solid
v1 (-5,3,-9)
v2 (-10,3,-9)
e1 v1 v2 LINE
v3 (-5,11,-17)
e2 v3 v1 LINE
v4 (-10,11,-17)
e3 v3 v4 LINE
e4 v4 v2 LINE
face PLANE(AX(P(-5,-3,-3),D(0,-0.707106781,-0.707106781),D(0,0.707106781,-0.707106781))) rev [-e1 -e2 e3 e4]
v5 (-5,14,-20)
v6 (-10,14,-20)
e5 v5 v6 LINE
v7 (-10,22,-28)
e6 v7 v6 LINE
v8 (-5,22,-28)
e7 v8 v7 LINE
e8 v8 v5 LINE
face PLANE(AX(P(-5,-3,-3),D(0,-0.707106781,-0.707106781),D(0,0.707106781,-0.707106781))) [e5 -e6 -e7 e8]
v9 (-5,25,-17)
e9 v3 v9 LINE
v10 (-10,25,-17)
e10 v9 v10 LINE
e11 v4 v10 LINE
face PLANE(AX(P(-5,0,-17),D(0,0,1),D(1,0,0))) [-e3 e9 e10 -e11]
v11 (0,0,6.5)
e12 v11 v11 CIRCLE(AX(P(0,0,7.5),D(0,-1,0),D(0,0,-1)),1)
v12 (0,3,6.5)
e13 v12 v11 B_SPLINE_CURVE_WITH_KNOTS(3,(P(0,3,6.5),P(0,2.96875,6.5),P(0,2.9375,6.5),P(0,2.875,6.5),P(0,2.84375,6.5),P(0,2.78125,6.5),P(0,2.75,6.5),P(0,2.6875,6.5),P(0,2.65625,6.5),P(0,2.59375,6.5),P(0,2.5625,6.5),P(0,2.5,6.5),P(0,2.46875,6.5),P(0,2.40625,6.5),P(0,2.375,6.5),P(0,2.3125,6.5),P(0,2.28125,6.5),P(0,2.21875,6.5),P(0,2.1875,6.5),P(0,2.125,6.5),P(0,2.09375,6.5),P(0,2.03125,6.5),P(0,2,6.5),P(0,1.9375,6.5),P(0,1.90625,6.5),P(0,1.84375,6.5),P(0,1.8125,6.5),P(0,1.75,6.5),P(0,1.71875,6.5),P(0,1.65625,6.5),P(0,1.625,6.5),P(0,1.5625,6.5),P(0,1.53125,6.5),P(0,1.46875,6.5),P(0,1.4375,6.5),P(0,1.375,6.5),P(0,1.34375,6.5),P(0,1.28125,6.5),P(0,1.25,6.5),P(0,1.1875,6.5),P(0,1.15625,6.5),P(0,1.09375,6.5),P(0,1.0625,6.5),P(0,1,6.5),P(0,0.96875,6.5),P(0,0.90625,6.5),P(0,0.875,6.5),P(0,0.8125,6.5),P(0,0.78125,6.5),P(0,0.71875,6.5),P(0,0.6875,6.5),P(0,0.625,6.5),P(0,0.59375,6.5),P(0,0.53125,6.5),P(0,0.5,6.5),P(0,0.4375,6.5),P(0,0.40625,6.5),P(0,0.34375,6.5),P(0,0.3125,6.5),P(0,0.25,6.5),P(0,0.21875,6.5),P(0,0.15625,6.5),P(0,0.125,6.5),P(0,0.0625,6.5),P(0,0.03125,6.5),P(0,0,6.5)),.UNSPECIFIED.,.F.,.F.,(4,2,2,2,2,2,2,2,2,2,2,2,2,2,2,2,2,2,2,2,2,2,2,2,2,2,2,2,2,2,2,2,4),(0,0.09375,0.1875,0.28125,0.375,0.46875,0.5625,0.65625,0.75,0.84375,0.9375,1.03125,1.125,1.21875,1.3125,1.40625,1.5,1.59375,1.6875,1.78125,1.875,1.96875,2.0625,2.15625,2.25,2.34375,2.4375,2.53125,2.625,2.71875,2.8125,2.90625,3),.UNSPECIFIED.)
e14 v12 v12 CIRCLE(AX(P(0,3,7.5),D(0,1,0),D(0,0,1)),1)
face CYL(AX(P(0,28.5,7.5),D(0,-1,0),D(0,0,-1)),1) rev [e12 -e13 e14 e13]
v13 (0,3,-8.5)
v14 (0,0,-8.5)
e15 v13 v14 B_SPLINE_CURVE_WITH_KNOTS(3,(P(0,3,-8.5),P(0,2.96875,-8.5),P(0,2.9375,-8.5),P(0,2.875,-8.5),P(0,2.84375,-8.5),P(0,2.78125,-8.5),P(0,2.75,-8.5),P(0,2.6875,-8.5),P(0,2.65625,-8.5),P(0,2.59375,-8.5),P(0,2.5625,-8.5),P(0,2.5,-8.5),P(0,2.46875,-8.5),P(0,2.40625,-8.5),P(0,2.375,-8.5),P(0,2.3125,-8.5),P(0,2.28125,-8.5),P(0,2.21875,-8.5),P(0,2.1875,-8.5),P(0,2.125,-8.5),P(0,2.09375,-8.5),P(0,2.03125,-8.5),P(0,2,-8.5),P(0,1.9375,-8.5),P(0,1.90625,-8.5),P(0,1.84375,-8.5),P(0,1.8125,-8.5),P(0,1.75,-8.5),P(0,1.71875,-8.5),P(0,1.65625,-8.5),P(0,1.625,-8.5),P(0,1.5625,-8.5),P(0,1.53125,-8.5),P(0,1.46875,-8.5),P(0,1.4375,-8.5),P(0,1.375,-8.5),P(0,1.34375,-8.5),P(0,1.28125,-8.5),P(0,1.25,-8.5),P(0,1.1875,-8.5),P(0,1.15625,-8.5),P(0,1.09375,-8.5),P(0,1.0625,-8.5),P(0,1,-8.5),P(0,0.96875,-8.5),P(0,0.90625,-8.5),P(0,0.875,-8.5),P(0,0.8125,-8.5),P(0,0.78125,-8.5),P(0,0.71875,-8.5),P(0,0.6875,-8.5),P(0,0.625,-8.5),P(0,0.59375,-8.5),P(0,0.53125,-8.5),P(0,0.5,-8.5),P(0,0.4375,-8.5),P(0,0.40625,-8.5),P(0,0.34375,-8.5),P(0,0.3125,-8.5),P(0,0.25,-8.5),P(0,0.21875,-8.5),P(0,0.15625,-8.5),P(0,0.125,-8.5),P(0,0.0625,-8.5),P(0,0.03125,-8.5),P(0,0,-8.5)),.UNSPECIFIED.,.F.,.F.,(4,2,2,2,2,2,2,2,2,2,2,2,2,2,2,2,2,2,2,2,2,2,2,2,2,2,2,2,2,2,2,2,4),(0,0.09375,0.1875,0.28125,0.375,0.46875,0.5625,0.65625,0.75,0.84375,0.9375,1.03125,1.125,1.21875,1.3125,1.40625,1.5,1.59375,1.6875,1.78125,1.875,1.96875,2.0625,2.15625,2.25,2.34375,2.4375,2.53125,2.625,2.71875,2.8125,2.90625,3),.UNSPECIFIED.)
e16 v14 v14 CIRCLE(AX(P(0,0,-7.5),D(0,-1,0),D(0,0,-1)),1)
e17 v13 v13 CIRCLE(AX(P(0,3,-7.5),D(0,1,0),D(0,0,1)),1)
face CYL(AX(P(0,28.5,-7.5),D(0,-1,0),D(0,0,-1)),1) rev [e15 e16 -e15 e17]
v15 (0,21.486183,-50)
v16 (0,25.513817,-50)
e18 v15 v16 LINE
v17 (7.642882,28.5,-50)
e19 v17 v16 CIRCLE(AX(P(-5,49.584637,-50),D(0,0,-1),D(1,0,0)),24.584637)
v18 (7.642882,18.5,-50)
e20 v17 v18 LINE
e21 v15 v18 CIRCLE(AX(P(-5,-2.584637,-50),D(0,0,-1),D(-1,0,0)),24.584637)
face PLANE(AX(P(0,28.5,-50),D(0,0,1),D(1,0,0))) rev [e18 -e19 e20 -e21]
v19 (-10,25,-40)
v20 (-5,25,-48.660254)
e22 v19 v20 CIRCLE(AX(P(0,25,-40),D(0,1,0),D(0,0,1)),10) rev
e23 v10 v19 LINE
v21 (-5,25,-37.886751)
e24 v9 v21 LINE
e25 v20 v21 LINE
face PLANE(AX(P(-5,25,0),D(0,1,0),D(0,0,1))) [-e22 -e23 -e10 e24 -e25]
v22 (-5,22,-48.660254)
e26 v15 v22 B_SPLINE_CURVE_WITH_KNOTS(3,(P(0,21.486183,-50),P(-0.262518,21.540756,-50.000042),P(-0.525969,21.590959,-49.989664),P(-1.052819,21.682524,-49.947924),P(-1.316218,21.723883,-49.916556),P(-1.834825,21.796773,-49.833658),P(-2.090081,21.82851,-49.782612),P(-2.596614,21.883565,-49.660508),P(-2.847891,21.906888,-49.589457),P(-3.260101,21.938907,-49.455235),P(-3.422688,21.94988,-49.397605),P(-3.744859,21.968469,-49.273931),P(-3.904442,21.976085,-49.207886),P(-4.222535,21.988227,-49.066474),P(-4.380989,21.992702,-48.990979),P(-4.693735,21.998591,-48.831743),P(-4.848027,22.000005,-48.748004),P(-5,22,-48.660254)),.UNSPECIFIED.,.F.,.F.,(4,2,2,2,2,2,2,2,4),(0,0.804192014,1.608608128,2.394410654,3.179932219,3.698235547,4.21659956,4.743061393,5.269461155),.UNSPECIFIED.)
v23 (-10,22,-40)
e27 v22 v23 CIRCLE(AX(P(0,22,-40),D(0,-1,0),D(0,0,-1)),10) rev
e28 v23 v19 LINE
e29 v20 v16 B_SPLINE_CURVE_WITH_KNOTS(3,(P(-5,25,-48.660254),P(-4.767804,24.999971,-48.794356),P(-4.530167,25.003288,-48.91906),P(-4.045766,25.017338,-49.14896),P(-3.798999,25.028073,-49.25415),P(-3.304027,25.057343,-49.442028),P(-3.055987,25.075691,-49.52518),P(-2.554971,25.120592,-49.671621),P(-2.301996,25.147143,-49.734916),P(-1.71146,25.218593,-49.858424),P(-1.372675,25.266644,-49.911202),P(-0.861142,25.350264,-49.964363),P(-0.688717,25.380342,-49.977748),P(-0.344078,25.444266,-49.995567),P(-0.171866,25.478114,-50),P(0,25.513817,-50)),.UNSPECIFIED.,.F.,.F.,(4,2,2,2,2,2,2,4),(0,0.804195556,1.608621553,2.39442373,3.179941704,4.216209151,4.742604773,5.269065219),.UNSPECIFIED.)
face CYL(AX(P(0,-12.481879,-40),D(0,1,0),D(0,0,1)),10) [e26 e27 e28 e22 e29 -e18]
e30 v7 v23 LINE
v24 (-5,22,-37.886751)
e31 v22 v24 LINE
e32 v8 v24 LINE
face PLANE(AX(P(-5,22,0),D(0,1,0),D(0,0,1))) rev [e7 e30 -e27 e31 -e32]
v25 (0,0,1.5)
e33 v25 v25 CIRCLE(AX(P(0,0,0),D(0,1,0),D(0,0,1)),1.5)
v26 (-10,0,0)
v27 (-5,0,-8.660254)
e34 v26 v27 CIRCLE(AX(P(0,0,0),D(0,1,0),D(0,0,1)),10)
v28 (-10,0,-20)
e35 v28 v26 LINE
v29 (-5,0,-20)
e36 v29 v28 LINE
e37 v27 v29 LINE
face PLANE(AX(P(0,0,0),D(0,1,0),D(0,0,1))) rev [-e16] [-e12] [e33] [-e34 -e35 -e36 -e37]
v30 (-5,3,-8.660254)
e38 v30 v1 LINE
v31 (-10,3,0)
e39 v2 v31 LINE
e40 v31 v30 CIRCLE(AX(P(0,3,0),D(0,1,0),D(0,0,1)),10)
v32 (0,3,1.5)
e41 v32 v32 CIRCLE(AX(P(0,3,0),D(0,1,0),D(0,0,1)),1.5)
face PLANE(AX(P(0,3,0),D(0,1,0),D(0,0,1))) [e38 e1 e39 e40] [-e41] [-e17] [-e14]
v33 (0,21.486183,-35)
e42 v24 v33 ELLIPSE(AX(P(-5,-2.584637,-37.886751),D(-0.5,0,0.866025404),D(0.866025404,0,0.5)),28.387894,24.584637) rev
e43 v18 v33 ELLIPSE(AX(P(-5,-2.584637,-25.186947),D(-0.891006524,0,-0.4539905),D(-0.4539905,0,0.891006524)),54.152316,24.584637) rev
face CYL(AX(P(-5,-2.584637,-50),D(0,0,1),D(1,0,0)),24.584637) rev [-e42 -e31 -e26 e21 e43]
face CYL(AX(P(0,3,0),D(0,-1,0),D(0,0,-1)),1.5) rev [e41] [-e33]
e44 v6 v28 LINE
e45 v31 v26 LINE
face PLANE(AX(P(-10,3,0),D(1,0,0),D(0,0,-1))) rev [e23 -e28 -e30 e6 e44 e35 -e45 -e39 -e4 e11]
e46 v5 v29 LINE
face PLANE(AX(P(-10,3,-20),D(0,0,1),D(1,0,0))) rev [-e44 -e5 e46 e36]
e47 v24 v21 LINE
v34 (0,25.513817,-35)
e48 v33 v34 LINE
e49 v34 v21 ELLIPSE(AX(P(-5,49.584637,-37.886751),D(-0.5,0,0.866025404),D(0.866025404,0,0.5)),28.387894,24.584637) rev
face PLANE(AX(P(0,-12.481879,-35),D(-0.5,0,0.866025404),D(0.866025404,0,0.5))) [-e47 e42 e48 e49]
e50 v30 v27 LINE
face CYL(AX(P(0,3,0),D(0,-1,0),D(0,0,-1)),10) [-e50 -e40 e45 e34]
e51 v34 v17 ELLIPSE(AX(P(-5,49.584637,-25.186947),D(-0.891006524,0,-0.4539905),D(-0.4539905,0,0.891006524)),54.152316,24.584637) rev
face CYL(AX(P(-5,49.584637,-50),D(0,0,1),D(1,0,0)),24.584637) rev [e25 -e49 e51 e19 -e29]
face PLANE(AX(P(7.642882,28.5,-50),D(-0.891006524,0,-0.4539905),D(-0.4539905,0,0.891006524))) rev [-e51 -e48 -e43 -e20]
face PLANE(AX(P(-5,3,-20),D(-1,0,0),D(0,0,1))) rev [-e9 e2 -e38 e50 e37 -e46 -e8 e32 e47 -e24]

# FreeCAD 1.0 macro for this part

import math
import FreeCAD as App
import Part
import Sketcher
from FreeCAD import Vector
Q = App.Units.Quantity

doc = App.newDocument("Part")
body = doc.addObject("PartDesign::Body", "Body")

# Sketch on XZ plane
sketch1 = body.newObject("Sketcher::SketchObject", "Sketch")
sketch1.AttachmentSupport = (doc.getObject("XZ_Plane"), [""])
sketch1.MapMode = "FlatFace"
sketch1.addGeometry(Part.LineSegment(Vector(-10, -20, 0), Vector(-10, 0, 0)), False)
sketch1.addGeometry(Part.ArcOfCircle(Part.Circle(Vector(0, 0, 0), Vector(0, 0, 1), 10), math.radians(-120), math.radians(180)), False)
sketch1.addGeometry(Part.LineSegment(Vector(-5, -8.7, 0), Vector(-5, -20, 0)), False)
sketch1.addGeometry(Part.LineSegment(Vector(-5, -20, 0), Vector(-10, -20, 0)), False)
sketch1.addGeometry(Part.Circle(Vector(0, 0, 0), Vector(0, 0, 1), 1.5), False)
sketch1.addConstraint(Sketcher.Constraint("Tangent", 0, 2, 1, 2))
sketch1.addConstraint(Sketcher.Constraint("Coincident", 1, 1, 2, 1))
sketch1.addConstraint(Sketcher.Constraint("Coincident", 2, 2, 3, 1))
sketch1.addConstraint(Sketcher.Constraint("Coincident", 3, 2, 0, 1))
sketch1.addConstraint(Sketcher.Constraint("Vertical", 0))
sketch1.addConstraint(Sketcher.Constraint("Vertical", 2))
sketch1.addConstraint(Sketcher.Constraint("Horizontal", 3))
sketch1.addConstraint(Sketcher.Constraint("Coincident", 1, 3, -1, 1))
sketch1.addConstraint(Sketcher.Constraint("Coincident", 4, 3, -1, 1))
sketch1.addConstraint(Sketcher.Constraint("Diameter", 4, Q("3 mm")))
sketch1.addConstraint(Sketcher.Constraint("Radius", 1, Q("10 mm")))
sketch1.addConstraint(Sketcher.Constraint("DistanceX", 3, 2, 3, 1, Q("5 mm")))
sketch1.addConstraint(Sketcher.Constraint("DistanceY", 0, 1, 0, 2, Q("20 mm")))
pad1 = body.newObject("PartDesign::Pad", "Pad")
pad1.Profile = sketch1
pad1.Length = 3
pad1.Reversed = True

# Sketch on YZ plane
sketch2 = body.newObject("Sketcher::SketchObject", "Sketch001")
sketch2.AttachmentSupport = (doc.getObject("YZ_Plane"), [""])
sketch2.MapMode = "FlatFace"
sketch2.AttachmentOffset = App.Placement(Vector(0, 0, -10), App.Rotation())
sketch2.addGeometry(Part.LineSegment(Vector(0, -20, 0), Vector(0, -9, 0)), False)
sketch2.addGeometry(Part.LineSegment(Vector(0, -9, 0), Vector(3, -9, 0)), False)
sketch2.addGeometry(Part.LineSegment(Vector(3, -9, 0), Vector(11, -17, 0)), False)
sketch2.addGeometry(Part.LineSegment(Vector(11, -17, 0), Vector(25, -17, 0)), False)
sketch2.addGeometry(Part.LineSegment(Vector(25, -17, 0), Vector(25, -30, 0)), False)
sketch2.addGeometry(Part.LineSegment(Vector(25, -30, 0), Vector(22, -30, 0)), False)
sketch2.addGeometry(Part.LineSegment(Vector(22, -30, 0), Vector(22, -28, 0)), False)
sketch2.addGeometry(Part.LineSegment(Vector(22, -28, 0), Vector(14, -20, 0)), False)
sketch2.addGeometry(Part.LineSegment(Vector(14, -20, 0), Vector(0, -20, 0)), False)
sketch2.addConstraint(Sketcher.Constraint("Coincident", 0, 2, 1, 1))
sketch2.addConstraint(Sketcher.Constraint("Coincident", 1, 2, 2, 1))
sketch2.addConstraint(Sketcher.Constraint("Coincident", 2, 2, 3, 1))
sketch2.addConstraint(Sketcher.Constraint("Coincident", 3, 2, 4, 1))
sketch2.addConstraint(Sketcher.Constraint("Coincident", 4, 2, 5, 1))
sketch2.addConstraint(Sketcher.Constraint("Coincident", 5, 2, 6, 1))
sketch2.addConstraint(Sketcher.Constraint("Coincident", 6, 2, 7, 1))
sketch2.addConstraint(Sketcher.Constraint("Coincident", 7, 2, 8, 1))
sketch2.addConstraint(Sketcher.Constraint("Coincident", 8, 2, 0, 1))
sketch2.addConstraint(Sketcher.Constraint("Vertical", 0))
sketch2.addConstraint(Sketcher.Constraint("Horizontal", 1))
sketch2.addConstraint(Sketcher.Constraint("Horizontal", 3))
sketch2.addConstraint(Sketcher.Constraint("Vertical", 4))
sketch2.addConstraint(Sketcher.Constraint("Horizontal", 5))
sketch2.addConstraint(Sketcher.Constraint("Vertical", 6))
sketch2.addConstraint(Sketcher.Constraint("Horizontal", 8))
sketch2.addConstraint(Sketcher.Constraint("PointOnObject", 0, 2, -2))
sketch2.addConstraint(Sketcher.Constraint("Parallel", 2, 7))
sketch2.addConstraint(Sketcher.Constraint("Equal", 1, 5))
sketch2.addConstraint(Sketcher.Constraint("Equal", 3, 8))
sketch2.addConstraint(Sketcher.Constraint("DistanceX", 1, 1, 1, 2, Q("3 mm")))
sketch2.addConstraint(Sketcher.Constraint("DistanceX", 3, 1, 3, 2, Q("14 mm")))
sketch2.addConstraint(Sketcher.Constraint("DistanceY", 0, 1, 0, 2, Q("11 mm")))
sketch2.addConstraint(Sketcher.Constraint("DistanceY", 4, 2, 4, 1, Q("13 mm")))
sketch2.addConstraint(Sketcher.Constraint("Angle", 2, Q("-45 deg")))
sketch2.addConstraint(Sketcher.Constraint("DistanceY", 0, 2, -1, 1, Q("9 mm")))
sketch2.addConstraint(Sketcher.Constraint("DistanceX", -1, 1, 2, 2, Q("11 mm")))
pad2 = body.newObject("PartDesign::Pad", "Pad001")
pad2.Profile = sketch2
pad2.Length = 5

# Sketch on XZ plane
sketch3 = body.newObject("Sketcher::SketchObject", "Sketch002")
sketch3.AttachmentSupport = (doc.getObject("XZ_Plane"), [""])
sketch3.MapMode = "FlatFace"
sketch3.AttachmentOffset = App.Placement(Vector(0, 0, -25), App.Rotation())
sketch3.addGeometry(Part.LineSegment(Vector(-10, -17, 0), Vector(-5, -17, 0)), False)
sketch3.addGeometry(Part.LineSegment(Vector(-5, -17, 0), Vector(-5, -38, 0)), False)
sketch3.addGeometry(Part.LineSegment(Vector(-5, -38, 0), Vector(0, -35, 0)), False)
sketch3.addGeometry(Part.LineSegment(Vector(0, -35, 0), Vector(0, -50, 0)), False)
sketch3.addGeometry(Part.ArcOfCircle(Part.Circle(Vector(0, -40, 0), Vector(0, 0, 1), 10), math.radians(180), math.radians(270)), False)
sketch3.addGeometry(Part.LineSegment(Vector(-10, -40, 0), Vector(-10, -17, 0)), False)
sketch3.addConstraint(Sketcher.Constraint("Coincident", 0, 2, 1, 1))
sketch3.addConstraint(Sketcher.Constraint("Coincident", 1, 2, 2, 1))
sketch3.addConstraint(Sketcher.Constraint("Coincident", 2, 2, 3, 1))
sketch3.addConstraint(Sketcher.Constraint("Coincident", 3, 2, 4, 2))
sketch3.addConstraint(Sketcher.Constraint("Tangent", 4, 1, 5, 1))
sketch3.addConstraint(Sketcher.Constraint("Coincident", 5, 2, 0, 1))
sketch3.addConstraint(Sketcher.Constraint("Horizontal", 0))
sketch3.addConstraint(Sketcher.Constraint("Vertical", 1))
sketch3.addConstraint(Sketcher.Constraint("Vertical", 3))
sketch3.addConstraint(Sketcher.Constraint("Vertical", 5))
sketch3.addConstraint(Sketcher.Constraint("PointOnObject", 4, 3, -2))
sketch3.addConstraint(Sketcher.Constraint("PointOnObject", 2, 2, -2))
sketch3.addConstraint(Sketcher.Constraint("Radius", 4, Q("10 mm")))
sketch3.addConstraint(Sketcher.Constraint("DistanceX", 0, 1, 0, 2, Q("5 mm")))
sketch3.addConstraint(Sketcher.Constraint("DistanceY", 3, 2, 3, 1, Q("15 mm")))
sketch3.addConstraint(Sketcher.Constraint("DistanceY", 5, 1, 5, 2, Q("23 mm")))
sketch3.addConstraint(Sketcher.Constraint("Angle", 2, Q("30 deg")))
sketch3.addConstraint(Sketcher.Constraint("DistanceY", 4, 3, -1, 1, Q("40 mm")))
pad3 = body.newObject("PartDesign::Pad", "Pad002")
pad3.Profile = sketch3
pad3.Length = 3

# Sketch on XZ plane
sketch4 = body.newObject("Sketcher::SketchObject", "Sketch003")
sketch4.AttachmentSupport = (doc.getObject("XZ_Plane"), [""])
sketch4.MapMode = "FlatFace"
sketch4.AttachmentOffset = App.Placement(Vector(0, 0, -23.5), App.Rotation())
sketch4.addGeometry(Part.LineSegment(Vector(-10, -37.9, 0), Vector(-5, -37.9, 0)), False)
sketch4.addGeometry(Part.LineSegment(Vector(-5, -37.9, 0), Vector(0, -35, 0)), False)
sketch4.addGeometry(Part.LineSegment(Vector(0, -35, 0), Vector(7.6, -50, 0)), False)
sketch4.addGeometry(Part.LineSegment(Vector(7.6, -50, 0), Vector(0, -50, 0)), False)
sketch4.addGeometry(Part.ArcOfCircle(Part.Circle(Vector(0, -40, 0), Vector(0, 0, 1), 10), math.radians(180), math.radians(270)), False)
sketch4.addGeometry(Part.LineSegment(Vector(-10, -40, 0), Vector(-10, -37.9, 0)), False)
sketch4.addConstraint(Sketcher.Constraint("Coincident", 0, 2, 1, 1))
sketch4.addConstraint(Sketcher.Constraint("Coincident", 1, 2, 2, 1))
sketch4.addConstraint(Sketcher.Constraint("Coincident", 2, 2, 3, 1))
sketch4.addConstraint(Sketcher.Constraint("Tangent", 3, 2, 4, 2))
sketch4.addConstraint(Sketcher.Constraint("Tangent", 4, 1, 5, 1))
sketch4.addConstraint(Sketcher.Constraint("Coincident", 5, 2, 0, 1))
sketch4.addConstraint(Sketcher.Constraint("Horizontal", 0))
sketch4.addConstraint(Sketcher.Constraint("Horizontal", 3))
sketch4.addConstraint(Sketcher.Constraint("Vertical", 5))
sketch4.addConstraint(Sketcher.Constraint("PointOnObject", 4, 3, -2))
sketch4.addConstraint(Sketcher.Constraint("PointOnObject", 1, 2, -2))
sketch4.addConstraint(Sketcher.Constraint("Radius", 4, Q("10 mm")))
sketch4.addConstraint(Sketcher.Constraint("DistanceX", 0, 1, 0, 2, Q("5 mm")))
sketch4.addConstraint(Sketcher.Constraint("Angle", 1, Q("30 deg")))
sketch4.addConstraint(Sketcher.Constraint("Angle", 2, Q("-63 deg")))
sketch4.addConstraint(Sketcher.Constraint("DistanceY", 4, 3, -1, 1, Q("40 mm")))
sketch4.addConstraint(Sketcher.Constraint("DistanceY", 1, 2, -1, 1, Q("35 mm")))
pad4 = body.newObject("PartDesign::Pad", "Pad003")
pad4.Profile = sketch4
pad4.Length = 10
pad4.Midplane = True

# Sketch on XY plane
sketch5 = body.newObject("Sketcher::SketchObject", "Sketch004")
sketch5.AttachmentSupport = (doc.getObject("XY_Plane"), [""])
sketch5.MapMode = "FlatFace"
sketch5.AttachmentOffset = App.Placement(Vector(0, 0, -35), App.Rotation())
sketch5.addGeometry(Part.LineSegment(Vector(-17.9, 36.4, 0), Vector(-17.9, -7.9, 0)), False)
sketch5.addGeometry(Part.LineSegment(Vector(-17.9, -7.9, 0), Vector(17.9, -7.9, 0)), False)
sketch5.addGeometry(Part.LineSegment(Vector(17.9, -7.9, 0), Vector(17.9, 36.4, 0)), False)
sketch5.addGeometry(Part.LineSegment(Vector(17.9, 36.4, 0), Vector(-17.9, 36.4, 0)), False)
sketch5.addGeometry(Part.LineSegment(Vector(-10, 22, 0), Vector(-10, 25, 0)), False)
sketch5.addGeometry(Part.LineSegment(Vector(-10, 25, 0), Vector(-5, 25, 0)), False)
sketch5.addGeometry(Part.ArcOfCircle(Part.Circle(Vector(-5, 49.6, 0), Vector(0, 0, 1), 24.6), math.radians(-90), math.radians(-59)), False)
sketch5.addGeometry(Part.LineSegment(Vector(7.6, 28.5, 0), Vector(7.6, 18.5, 0)), False)
sketch5.addGeometry(Part.ArcOfCircle(Part.Circle(Vector(-5, -2.6, 0), Vector(0, 0, 1), 24.6), math.radians(59), math.radians(90)), False)
sketch5.addGeometry(Part.LineSegment(Vector(-5, 22, 0), Vector(-10, 22, 0)), False)
sketch5.addConstraint(Sketcher.Constraint("Coincident", 0, 2, 1, 1))
sketch5.addConstraint(Sketcher.Constraint("Coincident", 1, 2, 2, 1))
sketch5.addConstraint(Sketcher.Constraint("Coincident", 2, 2, 3, 1))
sketch5.addConstraint(Sketcher.Constraint("Coincident", 3, 2, 0, 1))
sketch5.addConstraint(Sketcher.Constraint("Coincident", 4, 2, 5, 1))
sketch5.addConstraint(Sketcher.Constraint("Tangent", 5, 2, 6, 1))
sketch5.addConstraint(Sketcher.Constraint("Coincident", 6, 2, 7, 1))
sketch5.addConstraint(Sketcher.Constraint("Coincident", 7, 2, 8, 1))
sketch5.addConstraint(Sketcher.Constraint("Tangent", 8, 2, 9, 1))
sketch5.addConstraint(Sketcher.Constraint("Coincident", 9, 2, 4, 1))
sketch5.addConstraint(Sketcher.Constraint("Vertical", 0))
sketch5.addConstraint(Sketcher.Constraint("Horizontal", 1))
sketch5.addConstraint(Sketcher.Constraint("Vertical", 2))
sketch5.addConstraint(Sketcher.Constraint("Horizontal", 3))
sketch5.addConstraint(Sketcher.Constraint("Vertical", 4))
sketch5.addConstraint(Sketcher.Constraint("Horizontal", 5))
sketch5.addConstraint(Sketcher.Constraint("Vertical", 7))
sketch5.addConstraint(Sketcher.Constraint("Horizontal", 9))
sketch5.addConstraint(Sketcher.Constraint("Equal", 6, 8))
sketch5.addConstraint(Sketcher.Constraint("Vertical", 6, 3, 8, 3))
sketch5.addConstraint(Sketcher.Constraint("DistanceX", 5, 1, 5, 2, Q("5 mm")))
sketch5.addConstraint(Sketcher.Constraint("DistanceY", 4, 1, 4, 2, Q("3 mm")))
sketch5.addConstraint(Sketcher.Constraint("DistanceY", 7, 2, 7, 1, Q("10 mm")))
sketch5.addConstraint(Sketcher.Constraint("DistanceX", 6, 3, -1, 1, Q("5 mm")))
sketch5.addConstraint(Sketcher.Constraint("DistanceY", -1, 1, 4, 2, Q("25 mm")))
sketch5.addConstraint(Sketcher.Constraint("DistanceX", 1, 1, 1, 2, Q("35.874 mm")))
sketch5.addConstraint(Sketcher.Constraint("DistanceY", 0, 2, 0, 1, Q("44.374 mm")))
sketch5.addConstraint(Sketcher.Constraint("DistanceX", 0, 2, -1, 1, Q("17.937 mm")))
sketch5.addConstraint(Sketcher.Constraint("DistanceY", 0, 2, -1, 1, Q("7.937 mm")))
sketch5.addConstraint(Sketcher.Constraint("Radius", 6, Q("24.584637 mm")))
pocket1 = body.newObject("PartDesign::Pocket", "Pocket")
pocket1.Profile = sketch5
pocket1.Type = "ThroughAll"

# Sketch on XZ plane
sketch6 = body.newObject("Sketcher::SketchObject", "Sketch005")
sketch6.AttachmentSupport = (doc.getObject("XZ_Plane"), [""])
sketch6.MapMode = "FlatFace"
sketch6.addGeometry(Part.Circle(Vector(0, -7.5, 0), Vector(0, 0, 1), 1), False)
sketch6.addGeometry(Part.Circle(Vector(0, 7.5, 0), Vector(0, 0, 1), 1), False)
sketch6.addConstraint(Sketcher.Constraint("Equal", 0, 1))
sketch6.addConstraint(Sketcher.Constraint("Symmetric", 0, 3, 1, 3, -1, 1))
sketch6.addConstraint(Sketcher.Constraint("PointOnObject", 0, 3, -2))
sketch6.addConstraint(Sketcher.Constraint("Diameter", 0, Q("2 mm")))
sketch6.addConstraint(Sketcher.Constraint("DistanceY", 0, 3, 1, 3, Q("15 mm")))
pocket2 = body.newObject("PartDesign::Pocket", "Pocket001")
pocket2.Profile = sketch6
pocket2.Type = "ThroughAll"

doc.recompute()
